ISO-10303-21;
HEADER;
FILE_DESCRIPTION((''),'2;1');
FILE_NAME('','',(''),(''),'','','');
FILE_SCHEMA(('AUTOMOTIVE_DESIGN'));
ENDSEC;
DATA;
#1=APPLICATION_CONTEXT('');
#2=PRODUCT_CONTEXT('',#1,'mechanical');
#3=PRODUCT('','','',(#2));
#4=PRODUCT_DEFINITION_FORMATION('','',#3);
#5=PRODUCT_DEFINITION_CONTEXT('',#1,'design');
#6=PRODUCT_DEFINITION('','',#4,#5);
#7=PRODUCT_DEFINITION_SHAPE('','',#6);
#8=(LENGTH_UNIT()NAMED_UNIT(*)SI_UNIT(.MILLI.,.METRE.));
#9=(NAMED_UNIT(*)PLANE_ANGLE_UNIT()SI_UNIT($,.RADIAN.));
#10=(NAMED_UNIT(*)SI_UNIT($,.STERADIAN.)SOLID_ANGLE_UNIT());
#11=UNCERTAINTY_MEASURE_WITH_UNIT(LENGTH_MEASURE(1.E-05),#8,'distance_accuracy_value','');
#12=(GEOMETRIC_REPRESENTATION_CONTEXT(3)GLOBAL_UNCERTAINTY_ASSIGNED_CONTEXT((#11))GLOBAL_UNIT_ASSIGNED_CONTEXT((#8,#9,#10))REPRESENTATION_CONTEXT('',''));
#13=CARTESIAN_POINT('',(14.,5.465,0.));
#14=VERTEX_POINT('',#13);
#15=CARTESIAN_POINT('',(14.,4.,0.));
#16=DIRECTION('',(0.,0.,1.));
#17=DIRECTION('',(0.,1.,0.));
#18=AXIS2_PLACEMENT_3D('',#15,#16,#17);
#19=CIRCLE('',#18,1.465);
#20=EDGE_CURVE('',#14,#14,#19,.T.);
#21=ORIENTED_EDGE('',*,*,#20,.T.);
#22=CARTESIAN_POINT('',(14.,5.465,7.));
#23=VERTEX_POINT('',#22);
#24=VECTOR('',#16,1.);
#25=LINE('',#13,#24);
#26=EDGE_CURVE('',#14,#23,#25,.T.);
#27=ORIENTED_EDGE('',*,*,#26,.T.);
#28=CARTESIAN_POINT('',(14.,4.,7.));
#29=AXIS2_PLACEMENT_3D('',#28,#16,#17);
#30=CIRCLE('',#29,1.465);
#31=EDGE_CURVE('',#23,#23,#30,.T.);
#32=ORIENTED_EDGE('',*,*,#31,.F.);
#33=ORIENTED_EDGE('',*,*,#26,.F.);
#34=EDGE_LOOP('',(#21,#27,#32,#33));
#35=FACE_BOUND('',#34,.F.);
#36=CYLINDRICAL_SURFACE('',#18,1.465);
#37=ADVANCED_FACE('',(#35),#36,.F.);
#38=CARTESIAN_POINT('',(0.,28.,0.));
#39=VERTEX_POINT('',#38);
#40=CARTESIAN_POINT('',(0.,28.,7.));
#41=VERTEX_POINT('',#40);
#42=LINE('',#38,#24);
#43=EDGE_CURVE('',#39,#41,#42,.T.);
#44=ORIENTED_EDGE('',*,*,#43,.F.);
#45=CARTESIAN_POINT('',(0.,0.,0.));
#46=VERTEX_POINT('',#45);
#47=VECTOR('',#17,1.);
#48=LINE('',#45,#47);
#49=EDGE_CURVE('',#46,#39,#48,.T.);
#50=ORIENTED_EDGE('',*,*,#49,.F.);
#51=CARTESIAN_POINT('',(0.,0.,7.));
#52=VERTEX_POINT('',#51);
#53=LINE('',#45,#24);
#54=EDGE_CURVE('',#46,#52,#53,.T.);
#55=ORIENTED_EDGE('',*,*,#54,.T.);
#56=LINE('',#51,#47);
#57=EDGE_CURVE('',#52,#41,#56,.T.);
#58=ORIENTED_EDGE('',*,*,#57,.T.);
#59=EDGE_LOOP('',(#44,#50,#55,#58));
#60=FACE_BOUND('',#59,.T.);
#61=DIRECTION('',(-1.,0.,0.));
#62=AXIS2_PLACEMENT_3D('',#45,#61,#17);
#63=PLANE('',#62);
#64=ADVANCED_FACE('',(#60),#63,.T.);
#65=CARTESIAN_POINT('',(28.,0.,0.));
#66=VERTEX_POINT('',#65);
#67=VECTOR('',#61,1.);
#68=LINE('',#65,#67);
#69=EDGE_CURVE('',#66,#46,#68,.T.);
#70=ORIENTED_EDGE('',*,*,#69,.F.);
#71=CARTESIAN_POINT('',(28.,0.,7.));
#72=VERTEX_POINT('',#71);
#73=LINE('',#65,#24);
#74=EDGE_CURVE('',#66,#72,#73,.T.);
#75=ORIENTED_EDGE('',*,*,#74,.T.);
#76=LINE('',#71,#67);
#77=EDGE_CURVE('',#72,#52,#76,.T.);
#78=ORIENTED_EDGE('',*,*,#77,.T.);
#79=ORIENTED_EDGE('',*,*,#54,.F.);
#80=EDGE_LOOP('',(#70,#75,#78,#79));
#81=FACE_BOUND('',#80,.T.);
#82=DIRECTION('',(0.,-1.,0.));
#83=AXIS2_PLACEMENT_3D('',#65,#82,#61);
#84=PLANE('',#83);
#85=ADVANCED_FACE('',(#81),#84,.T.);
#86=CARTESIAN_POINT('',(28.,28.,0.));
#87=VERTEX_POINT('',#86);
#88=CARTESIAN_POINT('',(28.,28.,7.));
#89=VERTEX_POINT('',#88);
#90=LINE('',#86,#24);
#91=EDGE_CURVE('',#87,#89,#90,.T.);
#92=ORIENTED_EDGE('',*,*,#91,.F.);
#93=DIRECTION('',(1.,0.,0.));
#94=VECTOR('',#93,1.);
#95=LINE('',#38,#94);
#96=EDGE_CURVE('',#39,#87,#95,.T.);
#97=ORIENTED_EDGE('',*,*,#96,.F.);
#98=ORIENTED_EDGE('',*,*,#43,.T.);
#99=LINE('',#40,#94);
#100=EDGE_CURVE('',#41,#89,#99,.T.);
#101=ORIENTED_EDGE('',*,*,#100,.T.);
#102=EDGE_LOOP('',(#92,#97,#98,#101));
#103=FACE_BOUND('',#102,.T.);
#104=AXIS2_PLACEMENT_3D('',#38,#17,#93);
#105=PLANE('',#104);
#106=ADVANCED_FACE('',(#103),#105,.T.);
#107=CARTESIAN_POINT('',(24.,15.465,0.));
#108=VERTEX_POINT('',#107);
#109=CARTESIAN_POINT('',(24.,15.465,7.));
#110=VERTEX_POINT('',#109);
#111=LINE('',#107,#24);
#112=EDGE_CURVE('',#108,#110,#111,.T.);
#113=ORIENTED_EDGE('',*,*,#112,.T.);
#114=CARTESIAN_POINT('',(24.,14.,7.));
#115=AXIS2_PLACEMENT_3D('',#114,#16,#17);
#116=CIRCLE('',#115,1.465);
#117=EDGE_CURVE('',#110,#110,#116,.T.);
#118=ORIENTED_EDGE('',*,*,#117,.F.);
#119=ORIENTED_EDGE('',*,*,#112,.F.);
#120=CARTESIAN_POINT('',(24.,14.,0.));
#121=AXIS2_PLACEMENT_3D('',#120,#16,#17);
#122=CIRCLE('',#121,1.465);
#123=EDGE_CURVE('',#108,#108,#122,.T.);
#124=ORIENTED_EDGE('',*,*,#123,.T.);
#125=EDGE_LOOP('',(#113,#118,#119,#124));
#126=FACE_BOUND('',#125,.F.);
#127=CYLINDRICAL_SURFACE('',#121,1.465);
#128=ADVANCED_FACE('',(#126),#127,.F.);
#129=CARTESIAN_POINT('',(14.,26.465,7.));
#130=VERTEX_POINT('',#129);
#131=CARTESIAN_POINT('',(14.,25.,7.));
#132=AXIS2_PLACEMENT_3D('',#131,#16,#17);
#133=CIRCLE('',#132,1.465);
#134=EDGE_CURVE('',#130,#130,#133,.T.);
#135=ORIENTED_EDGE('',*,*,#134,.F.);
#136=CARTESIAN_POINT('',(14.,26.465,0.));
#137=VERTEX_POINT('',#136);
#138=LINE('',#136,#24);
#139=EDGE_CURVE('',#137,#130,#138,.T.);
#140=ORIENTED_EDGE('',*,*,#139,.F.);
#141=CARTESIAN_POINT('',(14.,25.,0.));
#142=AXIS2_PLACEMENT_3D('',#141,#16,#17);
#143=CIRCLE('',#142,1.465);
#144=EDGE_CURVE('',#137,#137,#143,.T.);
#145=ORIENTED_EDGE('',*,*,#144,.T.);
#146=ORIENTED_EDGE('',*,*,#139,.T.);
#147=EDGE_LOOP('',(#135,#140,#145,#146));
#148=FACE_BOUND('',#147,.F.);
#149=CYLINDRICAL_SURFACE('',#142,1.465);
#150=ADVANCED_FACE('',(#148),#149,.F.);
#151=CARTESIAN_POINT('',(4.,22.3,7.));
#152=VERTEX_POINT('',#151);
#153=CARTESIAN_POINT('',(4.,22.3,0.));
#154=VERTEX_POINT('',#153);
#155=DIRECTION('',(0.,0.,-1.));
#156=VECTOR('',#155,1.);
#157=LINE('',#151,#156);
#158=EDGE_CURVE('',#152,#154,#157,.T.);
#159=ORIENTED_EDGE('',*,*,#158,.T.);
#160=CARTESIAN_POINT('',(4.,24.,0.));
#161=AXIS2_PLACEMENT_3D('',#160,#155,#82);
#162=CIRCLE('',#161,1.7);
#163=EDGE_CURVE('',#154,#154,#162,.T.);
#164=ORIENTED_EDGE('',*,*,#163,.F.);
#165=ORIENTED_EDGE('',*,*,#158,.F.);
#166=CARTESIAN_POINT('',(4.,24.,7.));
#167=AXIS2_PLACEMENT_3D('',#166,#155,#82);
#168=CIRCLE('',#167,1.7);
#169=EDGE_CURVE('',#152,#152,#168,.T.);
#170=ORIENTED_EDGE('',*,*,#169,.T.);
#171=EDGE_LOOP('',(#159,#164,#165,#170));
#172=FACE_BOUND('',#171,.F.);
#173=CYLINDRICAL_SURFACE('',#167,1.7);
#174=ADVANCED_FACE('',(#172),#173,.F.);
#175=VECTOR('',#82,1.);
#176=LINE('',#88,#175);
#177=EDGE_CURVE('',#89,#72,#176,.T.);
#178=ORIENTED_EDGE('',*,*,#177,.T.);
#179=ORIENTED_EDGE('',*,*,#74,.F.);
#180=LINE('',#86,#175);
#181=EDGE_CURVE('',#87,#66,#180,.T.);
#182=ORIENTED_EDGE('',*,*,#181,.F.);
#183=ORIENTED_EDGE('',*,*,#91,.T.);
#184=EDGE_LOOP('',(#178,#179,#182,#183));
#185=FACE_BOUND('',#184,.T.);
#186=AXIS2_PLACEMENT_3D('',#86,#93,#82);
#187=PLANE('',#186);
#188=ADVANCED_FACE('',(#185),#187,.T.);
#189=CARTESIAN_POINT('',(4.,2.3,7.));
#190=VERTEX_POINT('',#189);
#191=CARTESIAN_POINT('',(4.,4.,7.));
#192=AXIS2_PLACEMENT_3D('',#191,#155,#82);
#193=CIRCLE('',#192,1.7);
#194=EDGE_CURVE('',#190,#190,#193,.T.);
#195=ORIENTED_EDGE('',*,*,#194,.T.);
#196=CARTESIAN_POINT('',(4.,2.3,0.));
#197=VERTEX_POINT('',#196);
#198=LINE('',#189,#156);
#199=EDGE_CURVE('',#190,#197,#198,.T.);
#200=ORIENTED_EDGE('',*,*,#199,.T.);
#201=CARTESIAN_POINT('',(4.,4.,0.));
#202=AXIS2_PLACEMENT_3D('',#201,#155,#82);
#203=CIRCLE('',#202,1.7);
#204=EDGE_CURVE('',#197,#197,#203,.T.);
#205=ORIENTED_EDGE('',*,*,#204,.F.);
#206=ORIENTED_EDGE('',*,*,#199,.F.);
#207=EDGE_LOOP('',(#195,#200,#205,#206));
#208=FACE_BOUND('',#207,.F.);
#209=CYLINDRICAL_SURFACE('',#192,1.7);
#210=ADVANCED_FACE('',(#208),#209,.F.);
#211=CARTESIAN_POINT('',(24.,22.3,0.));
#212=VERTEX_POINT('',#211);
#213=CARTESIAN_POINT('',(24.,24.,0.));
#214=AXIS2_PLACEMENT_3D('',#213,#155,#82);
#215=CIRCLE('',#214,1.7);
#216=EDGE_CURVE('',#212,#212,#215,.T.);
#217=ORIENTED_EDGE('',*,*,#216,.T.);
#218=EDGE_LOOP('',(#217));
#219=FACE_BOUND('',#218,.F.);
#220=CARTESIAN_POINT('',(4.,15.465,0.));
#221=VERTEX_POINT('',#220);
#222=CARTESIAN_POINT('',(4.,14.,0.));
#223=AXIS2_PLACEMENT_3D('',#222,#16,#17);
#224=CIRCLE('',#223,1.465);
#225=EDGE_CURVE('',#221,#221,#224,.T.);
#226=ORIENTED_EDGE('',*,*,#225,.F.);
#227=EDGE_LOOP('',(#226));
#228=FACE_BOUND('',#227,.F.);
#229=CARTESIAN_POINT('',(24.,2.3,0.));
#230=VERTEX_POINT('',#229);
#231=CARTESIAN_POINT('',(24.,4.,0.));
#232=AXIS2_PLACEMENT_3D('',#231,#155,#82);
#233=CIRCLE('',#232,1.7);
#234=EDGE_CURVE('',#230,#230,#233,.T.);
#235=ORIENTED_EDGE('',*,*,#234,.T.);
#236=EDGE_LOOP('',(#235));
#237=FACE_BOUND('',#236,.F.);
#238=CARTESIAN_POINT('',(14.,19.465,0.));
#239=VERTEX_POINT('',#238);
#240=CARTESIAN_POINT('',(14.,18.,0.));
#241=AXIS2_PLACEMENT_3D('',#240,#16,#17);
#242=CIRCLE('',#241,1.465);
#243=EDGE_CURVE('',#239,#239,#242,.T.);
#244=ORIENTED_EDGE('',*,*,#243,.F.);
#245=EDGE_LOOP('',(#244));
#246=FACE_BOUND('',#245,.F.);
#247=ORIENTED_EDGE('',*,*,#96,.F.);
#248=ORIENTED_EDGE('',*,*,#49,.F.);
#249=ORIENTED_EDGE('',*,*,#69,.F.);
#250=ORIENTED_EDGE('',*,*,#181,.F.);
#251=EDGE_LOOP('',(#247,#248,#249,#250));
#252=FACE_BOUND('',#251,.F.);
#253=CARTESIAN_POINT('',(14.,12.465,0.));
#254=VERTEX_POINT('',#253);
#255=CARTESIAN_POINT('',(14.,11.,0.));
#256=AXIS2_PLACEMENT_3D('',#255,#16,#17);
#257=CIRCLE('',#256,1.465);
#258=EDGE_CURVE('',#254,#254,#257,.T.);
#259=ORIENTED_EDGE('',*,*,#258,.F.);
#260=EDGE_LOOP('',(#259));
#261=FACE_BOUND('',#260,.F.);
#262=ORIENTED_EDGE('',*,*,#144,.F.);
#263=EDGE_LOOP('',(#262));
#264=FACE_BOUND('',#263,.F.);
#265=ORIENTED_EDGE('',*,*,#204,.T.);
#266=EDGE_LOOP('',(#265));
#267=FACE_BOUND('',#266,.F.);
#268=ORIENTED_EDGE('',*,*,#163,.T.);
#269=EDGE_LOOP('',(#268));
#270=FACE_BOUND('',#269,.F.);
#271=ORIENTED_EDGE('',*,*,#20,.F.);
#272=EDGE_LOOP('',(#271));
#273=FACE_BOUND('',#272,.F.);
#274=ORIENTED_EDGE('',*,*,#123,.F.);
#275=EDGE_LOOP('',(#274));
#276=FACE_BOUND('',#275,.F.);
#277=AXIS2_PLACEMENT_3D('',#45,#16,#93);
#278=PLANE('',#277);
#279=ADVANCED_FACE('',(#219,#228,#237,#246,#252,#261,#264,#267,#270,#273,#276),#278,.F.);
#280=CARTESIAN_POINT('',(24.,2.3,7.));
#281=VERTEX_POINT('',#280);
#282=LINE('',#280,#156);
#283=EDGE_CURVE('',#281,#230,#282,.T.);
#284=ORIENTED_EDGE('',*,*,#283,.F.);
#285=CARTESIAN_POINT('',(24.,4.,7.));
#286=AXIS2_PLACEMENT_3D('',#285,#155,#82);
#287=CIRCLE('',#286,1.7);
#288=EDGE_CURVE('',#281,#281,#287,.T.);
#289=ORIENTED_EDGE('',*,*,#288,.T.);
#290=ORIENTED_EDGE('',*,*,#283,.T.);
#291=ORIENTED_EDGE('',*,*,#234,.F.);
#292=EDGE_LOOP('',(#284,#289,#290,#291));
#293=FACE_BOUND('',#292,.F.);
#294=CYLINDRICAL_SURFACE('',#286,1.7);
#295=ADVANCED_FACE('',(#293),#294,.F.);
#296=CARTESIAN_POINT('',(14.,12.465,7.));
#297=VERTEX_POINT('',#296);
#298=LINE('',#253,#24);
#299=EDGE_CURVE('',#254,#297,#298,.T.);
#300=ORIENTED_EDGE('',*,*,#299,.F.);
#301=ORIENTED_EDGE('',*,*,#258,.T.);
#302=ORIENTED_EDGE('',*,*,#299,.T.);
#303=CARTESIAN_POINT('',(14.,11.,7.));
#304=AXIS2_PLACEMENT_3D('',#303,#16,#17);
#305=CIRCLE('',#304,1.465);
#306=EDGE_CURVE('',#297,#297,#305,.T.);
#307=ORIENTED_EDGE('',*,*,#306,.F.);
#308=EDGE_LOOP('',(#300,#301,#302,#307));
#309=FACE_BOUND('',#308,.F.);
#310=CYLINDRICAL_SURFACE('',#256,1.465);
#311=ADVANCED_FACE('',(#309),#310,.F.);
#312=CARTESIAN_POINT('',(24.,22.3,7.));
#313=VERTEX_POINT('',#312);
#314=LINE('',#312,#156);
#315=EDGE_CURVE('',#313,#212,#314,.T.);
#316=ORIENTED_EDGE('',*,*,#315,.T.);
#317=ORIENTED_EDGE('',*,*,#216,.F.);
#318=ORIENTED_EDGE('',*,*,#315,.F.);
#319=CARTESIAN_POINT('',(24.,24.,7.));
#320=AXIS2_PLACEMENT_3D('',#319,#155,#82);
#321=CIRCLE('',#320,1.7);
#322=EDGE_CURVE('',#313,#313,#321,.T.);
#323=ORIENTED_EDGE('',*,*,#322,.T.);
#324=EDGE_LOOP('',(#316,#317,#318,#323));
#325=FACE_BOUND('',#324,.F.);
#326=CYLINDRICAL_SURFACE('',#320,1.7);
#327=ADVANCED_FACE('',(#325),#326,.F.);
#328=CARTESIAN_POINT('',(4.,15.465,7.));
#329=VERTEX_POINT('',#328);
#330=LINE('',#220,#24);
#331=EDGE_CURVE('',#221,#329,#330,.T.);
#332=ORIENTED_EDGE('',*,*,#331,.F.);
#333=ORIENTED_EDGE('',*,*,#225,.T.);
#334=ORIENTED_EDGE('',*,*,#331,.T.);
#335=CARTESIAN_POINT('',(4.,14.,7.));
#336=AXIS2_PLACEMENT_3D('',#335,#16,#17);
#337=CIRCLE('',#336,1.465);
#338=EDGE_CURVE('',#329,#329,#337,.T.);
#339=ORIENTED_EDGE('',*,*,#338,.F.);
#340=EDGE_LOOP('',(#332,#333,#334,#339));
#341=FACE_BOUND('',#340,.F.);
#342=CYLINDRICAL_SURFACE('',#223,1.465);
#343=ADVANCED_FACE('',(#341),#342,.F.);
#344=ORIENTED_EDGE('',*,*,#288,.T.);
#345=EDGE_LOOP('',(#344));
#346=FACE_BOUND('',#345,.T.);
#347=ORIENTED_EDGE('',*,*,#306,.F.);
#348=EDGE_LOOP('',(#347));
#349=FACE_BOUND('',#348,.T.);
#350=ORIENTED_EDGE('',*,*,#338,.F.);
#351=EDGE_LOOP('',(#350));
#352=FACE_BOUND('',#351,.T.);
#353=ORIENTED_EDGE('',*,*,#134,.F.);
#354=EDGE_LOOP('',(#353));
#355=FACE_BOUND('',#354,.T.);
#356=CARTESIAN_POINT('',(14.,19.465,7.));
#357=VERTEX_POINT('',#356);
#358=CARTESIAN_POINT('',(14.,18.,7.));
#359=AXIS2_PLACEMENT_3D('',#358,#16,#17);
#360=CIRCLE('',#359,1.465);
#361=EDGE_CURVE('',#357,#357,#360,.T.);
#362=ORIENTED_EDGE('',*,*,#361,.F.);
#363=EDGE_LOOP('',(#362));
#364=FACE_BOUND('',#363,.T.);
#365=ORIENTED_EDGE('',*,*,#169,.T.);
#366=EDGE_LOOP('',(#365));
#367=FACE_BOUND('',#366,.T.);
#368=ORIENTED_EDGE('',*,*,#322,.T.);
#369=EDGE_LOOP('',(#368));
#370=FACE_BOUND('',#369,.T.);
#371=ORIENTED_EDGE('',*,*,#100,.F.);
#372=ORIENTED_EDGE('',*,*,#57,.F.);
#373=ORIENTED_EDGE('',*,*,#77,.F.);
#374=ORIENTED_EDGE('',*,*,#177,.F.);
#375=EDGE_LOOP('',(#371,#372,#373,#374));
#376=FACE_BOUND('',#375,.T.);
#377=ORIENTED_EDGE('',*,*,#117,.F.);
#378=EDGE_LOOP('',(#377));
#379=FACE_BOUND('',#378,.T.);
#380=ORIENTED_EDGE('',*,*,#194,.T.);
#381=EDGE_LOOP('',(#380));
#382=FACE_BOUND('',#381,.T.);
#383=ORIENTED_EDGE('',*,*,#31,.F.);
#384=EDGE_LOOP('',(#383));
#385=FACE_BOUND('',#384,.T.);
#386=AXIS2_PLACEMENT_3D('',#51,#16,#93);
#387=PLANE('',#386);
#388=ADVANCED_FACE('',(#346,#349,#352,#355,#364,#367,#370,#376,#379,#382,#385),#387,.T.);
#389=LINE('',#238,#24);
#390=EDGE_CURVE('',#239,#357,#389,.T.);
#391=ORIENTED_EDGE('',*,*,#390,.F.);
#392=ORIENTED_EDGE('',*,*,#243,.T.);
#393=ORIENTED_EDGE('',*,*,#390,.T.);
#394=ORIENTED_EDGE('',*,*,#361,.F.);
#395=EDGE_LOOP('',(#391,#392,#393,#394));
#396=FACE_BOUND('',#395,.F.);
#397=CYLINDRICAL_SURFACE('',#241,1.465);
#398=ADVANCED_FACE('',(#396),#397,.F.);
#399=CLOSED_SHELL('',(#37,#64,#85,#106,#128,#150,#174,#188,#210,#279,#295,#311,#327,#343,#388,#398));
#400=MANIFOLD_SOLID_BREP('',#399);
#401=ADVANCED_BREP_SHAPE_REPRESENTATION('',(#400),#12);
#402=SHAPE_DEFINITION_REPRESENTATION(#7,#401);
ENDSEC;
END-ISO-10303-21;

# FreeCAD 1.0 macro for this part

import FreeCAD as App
import Part
import Sketcher

V = App.Vector
Q = App.Units.Quantity

doc = App.newDocument("Part")
body = doc.addObject("PartDesign::Body", "Body")

# Sketch on XY plane
sketch1 = body.newObject("Sketcher::SketchObject", "Sketch")
sketch1.AttachmentSupport = (doc.getObject("XY_Plane"), [""])
sketch1.MapMode = "FlatFace"
sketch1.addGeometry(Part.LineSegment(V(28, 28, 0), V(0, 28, 0)), False)
sketch1.addGeometry(Part.LineSegment(V(0, 28, 0), V(0, 0, 0)), False)
sketch1.addGeometry(Part.LineSegment(V(0, 0, 0), V(28, 0, 0)), False)
sketch1.addGeometry(Part.LineSegment(V(28, 0, 0), V(28, 28, 0)), False)
sketch1.addConstraint(Sketcher.Constraint("Coincident", 0, 2, 1, 1))
sketch1.addConstraint(Sketcher.Constraint("Coincident", 1, 2, 2, 1))
sketch1.addConstraint(Sketcher.Constraint("Coincident", 2, 2, 3, 1))
sketch1.addConstraint(Sketcher.Constraint("Coincident", 3, 2, 0, 1))
sketch1.addConstraint(Sketcher.Constraint("Horizontal", 0))
sketch1.addConstraint(Sketcher.Constraint("Vertical", 1))
sketch1.addConstraint(Sketcher.Constraint("Horizontal", 2))
sketch1.addConstraint(Sketcher.Constraint("Vertical", 3))
sketch1.addConstraint(Sketcher.Constraint("Coincident", 1, 2, -1, 1))
sketch1.addConstraint(Sketcher.Constraint("Equal", 2, 1))
sketch1.addConstraint(Sketcher.Constraint("DistanceX", 0, 2, 0, 1, Q("28 mm")))
pad1 = body.newObject("PartDesign::Pad", "Pad")
pad1.Profile = sketch1
pad1.Length = 7

# Sketch on XY plane
sketch2 = body.newObject("Sketcher::SketchObject", "Sketch001")
sketch2.AttachmentSupport = (doc.getObject("XY_Plane"), [""])
sketch2.MapMode = "FlatFace"
sketch2.addGeometry(Part.Circle(V(14, 25, 0), V(0, 0, 1), 1.5), False)
sketch2.addGeometry(Part.Circle(V(4, 14, 0), V(0, 0, 1), 1.5), False)
sketch2.addGeometry(Part.Circle(V(14, 18, 0), V(0, 0, 1), 1.5), False)
sketch2.addGeometry(Part.Circle(V(14, 11, 0), V(0, 0, 1), 1.5), False)
sketch2.addGeometry(Part.Circle(V(24, 14, 0), V(0, 0, 1), 1.5), False)
sketch2.addGeometry(Part.Circle(V(14, 4, 0), V(0, 0, 1), 1.5), False)
sketch2.addConstraint(Sketcher.Constraint("Equal", 0, 1))
sketch2.addConstraint(Sketcher.Constraint("Equal", 1, 2))
sketch2.addConstraint(Sketcher.Constraint("Equal", 2, 3))
sketch2.addConstraint(Sketcher.Constraint("Equal", 3, 4))
sketch2.addConstraint(Sketcher.Constraint("Equal", 4, 5))
sketch2.addConstraint(Sketcher.Constraint("Horizontal", 1, 3, 4, 3))
sketch2.addConstraint(Sketcher.Constraint("Vertical", 0, 3, 2, 3))
sketch2.addConstraint(Sketcher.Constraint("Vertical", 2, 3, 3, 3))
sketch2.addConstraint(Sketcher.Constraint("Vertical", 3, 3, 5, 3))
sketch2.addConstraint(Sketcher.Constraint("Diameter", 0, Q("2.93 mm")))
sketch2.addConstraint(Sketcher.Constraint("DistanceX", -1, 1, 0, 3, Q("14 mm")))
sketch2.addConstraint(Sketcher.Constraint("DistanceY", -1, 1, 0, 3, Q("25 mm")))
sketch2.addConstraint(Sketcher.Constraint("DistanceX", -1, 1, 1, 3, Q("4 mm")))
sketch2.addConstraint(Sketcher.Constraint("DistanceY", -1, 1, 1, 3, Q("14 mm")))
sketch2.addConstraint(Sketcher.Constraint("DistanceY", -1, 1, 2, 3, Q("18 mm")))
sketch2.addConstraint(Sketcher.Constraint("DistanceY", -1, 1, 3, 3, Q("11 mm")))
sketch2.addConstraint(Sketcher.Constraint("DistanceX", -1, 1, 4, 3, Q("24 mm")))
sketch2.addConstraint(Sketcher.Constraint("DistanceY", -1, 1, 5, 3, Q("4 mm")))
doc.recompute()
hole = body.newObject("PartDesign::Hole", "Hole")
hole.Profile = sketch2
hole.ThreadType = "None"
hole.Diameter = 2.93
hole.DepthType = "Dimension"
hole.Depth = 7
hole.DrillPoint = "Flat"
hole.Reversed = True

# Sketch on XY plane
sketch3 = body.newObject("Sketcher::SketchObject", "Sketch002")
sketch3.AttachmentSupport = (doc.getObject("XY_Plane"), [""])
sketch3.MapMode = "FlatFace"
sketch3.AttachmentOffset = App.Placement(V(0, 0, 7), App.Rotation())
sketch3.addGeometry(Part.Circle(V(4, 24, 0), V(0, 0, 1), 1.7), False)
sketch3.addGeometry(Part.Circle(V(24, 24, 0), V(0, 0, 1), 1.7), False)
sketch3.addGeometry(Part.Circle(V(24, 4, 0), V(0, 0, 1), 1.7), False)
sketch3.addGeometry(Part.Circle(V(4, 4, 0), V(0, 0, 1), 1.7), False)
sketch3.addConstraint(Sketcher.Constraint("Equal", 0, 1))
sketch3.addConstraint(Sketcher.Constraint("Equal", 1, 2))
sketch3.addConstraint(Sketcher.Constraint("Equal", 2, 3))
sketch3.addConstraint(Sketcher.Constraint("Horizontal", 0, 3, 1, 3))
sketch3.addConstraint(Sketcher.Constraint("Horizontal", 2, 3, 3, 3))
sketch3.addConstraint(Sketcher.Constraint("Vertical", 1, 3, 2, 3))
sketch3.addConstraint(Sketcher.Constraint("Vertical", 0, 3, 3, 3))
sketch3.addConstraint(Sketcher.Constraint("Diameter", 0, Q("3.4 mm")))
sketch3.addConstraint(Sketcher.Constraint("DistanceX", -1, 1, 0, 3, Q("4 mm")))
sketch3.addConstraint(Sketcher.Constraint("DistanceY", -1, 1, 0, 3, Q("24 mm")))
sketch3.addConstraint(Sketcher.Constraint("DistanceX", -1, 1, 1, 3, Q("24 mm")))
sketch3.addConstraint(Sketcher.Constraint("DistanceY", -1, 1, 2, 3, Q("4 mm")))
doc.recompute()
hole2 = body.newObject("PartDesign::Hole", "Hole001")
hole2.Profile = sketch3
hole2.ThreadType = "None"
hole2.Diameter = 3.4
hole2.DepthType = "Dimension"
hole2.Depth = 7
hole2.DrillPoint = "Flat"

doc.recompute()
